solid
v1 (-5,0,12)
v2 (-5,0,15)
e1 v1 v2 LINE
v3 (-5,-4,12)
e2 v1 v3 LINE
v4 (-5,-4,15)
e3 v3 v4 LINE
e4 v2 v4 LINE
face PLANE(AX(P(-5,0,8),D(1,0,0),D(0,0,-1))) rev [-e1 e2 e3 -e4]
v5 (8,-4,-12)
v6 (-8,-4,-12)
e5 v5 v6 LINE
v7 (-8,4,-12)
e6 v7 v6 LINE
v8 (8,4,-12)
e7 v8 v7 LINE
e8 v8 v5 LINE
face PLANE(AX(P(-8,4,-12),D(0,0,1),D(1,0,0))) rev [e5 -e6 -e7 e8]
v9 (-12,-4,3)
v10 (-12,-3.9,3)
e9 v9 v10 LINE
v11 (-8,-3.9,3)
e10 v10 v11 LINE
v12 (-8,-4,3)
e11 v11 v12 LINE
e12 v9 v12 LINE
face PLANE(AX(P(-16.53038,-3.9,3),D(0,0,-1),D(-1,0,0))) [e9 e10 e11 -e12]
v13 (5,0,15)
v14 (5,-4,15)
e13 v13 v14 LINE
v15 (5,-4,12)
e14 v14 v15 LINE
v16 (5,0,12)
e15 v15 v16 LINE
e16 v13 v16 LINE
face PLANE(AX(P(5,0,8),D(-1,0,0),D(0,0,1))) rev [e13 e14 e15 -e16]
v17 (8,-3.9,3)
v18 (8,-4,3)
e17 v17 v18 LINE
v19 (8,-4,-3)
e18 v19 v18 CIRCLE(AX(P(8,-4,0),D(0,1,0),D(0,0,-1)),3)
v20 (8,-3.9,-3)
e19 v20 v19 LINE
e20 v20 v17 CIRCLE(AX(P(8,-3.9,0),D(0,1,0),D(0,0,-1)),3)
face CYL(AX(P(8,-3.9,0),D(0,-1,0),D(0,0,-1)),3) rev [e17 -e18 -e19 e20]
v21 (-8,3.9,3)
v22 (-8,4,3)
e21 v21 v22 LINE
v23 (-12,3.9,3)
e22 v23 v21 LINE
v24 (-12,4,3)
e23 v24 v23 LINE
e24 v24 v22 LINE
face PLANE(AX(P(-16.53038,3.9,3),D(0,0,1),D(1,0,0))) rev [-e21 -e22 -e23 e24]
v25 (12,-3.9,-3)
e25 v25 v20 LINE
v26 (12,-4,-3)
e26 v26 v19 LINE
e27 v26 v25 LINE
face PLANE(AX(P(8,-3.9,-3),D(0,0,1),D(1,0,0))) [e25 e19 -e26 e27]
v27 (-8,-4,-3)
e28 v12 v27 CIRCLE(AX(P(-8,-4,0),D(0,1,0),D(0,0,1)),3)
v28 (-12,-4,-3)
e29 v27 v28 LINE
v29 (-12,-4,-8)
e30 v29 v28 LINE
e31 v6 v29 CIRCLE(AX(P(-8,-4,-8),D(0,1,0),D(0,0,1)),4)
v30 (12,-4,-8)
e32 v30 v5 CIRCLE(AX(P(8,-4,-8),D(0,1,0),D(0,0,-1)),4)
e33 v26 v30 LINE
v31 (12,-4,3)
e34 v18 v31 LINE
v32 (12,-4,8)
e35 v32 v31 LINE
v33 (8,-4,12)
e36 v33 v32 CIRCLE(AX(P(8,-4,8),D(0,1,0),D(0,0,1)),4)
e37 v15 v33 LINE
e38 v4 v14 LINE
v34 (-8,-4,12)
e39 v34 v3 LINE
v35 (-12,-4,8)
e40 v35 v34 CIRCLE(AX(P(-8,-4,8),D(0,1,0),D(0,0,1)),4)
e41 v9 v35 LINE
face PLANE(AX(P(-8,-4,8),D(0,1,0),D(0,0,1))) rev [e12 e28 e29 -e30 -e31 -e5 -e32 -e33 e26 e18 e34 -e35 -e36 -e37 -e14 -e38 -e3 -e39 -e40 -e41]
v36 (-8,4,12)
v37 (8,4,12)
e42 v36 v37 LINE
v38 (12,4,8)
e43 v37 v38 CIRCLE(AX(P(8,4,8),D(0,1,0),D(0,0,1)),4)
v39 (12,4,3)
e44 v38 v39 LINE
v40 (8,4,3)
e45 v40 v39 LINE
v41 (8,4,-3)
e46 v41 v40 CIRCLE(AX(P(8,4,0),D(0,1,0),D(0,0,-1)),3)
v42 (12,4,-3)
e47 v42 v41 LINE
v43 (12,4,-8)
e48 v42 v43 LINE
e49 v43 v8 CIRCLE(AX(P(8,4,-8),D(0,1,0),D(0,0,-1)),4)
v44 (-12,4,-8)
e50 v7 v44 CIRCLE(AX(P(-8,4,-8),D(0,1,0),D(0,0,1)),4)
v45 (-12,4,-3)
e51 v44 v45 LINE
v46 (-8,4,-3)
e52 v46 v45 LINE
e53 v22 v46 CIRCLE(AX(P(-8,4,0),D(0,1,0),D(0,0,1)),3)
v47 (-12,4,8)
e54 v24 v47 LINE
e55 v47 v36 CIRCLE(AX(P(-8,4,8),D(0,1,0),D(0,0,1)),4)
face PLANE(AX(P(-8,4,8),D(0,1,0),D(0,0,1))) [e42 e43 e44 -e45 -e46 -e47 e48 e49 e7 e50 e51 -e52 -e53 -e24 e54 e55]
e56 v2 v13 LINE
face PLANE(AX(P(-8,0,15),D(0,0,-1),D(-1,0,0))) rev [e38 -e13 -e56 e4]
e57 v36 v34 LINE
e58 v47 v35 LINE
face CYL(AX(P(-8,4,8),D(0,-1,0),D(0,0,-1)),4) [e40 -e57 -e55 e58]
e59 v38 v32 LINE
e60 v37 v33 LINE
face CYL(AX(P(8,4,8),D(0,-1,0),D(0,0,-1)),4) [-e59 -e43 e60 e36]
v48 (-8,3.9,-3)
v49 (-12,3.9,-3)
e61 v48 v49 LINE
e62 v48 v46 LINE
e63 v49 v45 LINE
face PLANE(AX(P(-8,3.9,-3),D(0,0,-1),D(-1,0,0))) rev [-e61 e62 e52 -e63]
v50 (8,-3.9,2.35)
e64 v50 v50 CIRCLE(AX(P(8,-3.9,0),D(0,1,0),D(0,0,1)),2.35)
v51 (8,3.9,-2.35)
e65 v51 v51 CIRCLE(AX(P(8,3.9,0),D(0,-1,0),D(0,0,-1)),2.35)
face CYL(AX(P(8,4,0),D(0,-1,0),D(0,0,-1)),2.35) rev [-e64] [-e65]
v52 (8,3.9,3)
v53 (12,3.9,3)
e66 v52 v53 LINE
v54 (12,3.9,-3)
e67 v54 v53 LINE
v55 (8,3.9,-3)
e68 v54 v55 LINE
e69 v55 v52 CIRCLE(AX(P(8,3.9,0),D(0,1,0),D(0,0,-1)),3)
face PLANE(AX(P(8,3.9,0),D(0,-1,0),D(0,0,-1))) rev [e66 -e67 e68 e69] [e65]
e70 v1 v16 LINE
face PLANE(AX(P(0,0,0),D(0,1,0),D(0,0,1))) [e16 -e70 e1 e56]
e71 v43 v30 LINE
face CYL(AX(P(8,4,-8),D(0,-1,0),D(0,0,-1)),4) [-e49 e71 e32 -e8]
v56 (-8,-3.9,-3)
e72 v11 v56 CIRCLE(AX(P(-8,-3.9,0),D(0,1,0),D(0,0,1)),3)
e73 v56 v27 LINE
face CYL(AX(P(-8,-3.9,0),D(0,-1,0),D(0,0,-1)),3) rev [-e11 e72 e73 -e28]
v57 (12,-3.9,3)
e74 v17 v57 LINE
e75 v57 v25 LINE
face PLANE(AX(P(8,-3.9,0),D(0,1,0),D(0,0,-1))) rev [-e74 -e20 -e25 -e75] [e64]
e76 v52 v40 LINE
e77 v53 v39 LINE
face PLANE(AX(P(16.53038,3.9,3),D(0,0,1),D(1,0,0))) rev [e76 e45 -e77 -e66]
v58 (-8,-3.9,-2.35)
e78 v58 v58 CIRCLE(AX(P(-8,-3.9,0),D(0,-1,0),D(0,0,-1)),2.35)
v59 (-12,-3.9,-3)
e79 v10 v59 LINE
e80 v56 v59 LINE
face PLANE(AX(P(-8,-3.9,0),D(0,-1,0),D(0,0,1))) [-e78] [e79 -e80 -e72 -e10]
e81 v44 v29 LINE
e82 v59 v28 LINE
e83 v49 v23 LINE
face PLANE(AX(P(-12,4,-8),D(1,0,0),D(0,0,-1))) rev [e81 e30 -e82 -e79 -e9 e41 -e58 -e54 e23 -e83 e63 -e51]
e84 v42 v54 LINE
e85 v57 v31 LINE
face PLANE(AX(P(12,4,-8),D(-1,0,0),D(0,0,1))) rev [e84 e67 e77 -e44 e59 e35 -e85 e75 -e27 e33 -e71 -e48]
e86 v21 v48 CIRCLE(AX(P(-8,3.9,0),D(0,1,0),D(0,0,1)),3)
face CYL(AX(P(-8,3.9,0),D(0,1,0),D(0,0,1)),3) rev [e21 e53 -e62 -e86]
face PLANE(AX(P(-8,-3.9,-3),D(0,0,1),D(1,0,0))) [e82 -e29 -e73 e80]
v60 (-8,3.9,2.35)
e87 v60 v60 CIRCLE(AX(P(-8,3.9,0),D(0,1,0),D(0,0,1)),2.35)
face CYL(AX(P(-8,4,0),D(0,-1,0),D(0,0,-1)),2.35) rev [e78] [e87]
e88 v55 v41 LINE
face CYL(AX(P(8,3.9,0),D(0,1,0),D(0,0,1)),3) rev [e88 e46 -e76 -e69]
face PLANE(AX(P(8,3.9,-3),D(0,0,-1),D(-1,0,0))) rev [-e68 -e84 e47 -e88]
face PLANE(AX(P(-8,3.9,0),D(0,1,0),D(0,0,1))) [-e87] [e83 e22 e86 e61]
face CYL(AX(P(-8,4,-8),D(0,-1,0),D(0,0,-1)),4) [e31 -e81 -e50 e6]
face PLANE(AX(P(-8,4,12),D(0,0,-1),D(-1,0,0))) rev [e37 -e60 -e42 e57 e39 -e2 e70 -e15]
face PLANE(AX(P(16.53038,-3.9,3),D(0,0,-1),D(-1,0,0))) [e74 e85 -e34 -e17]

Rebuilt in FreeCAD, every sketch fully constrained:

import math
import FreeCAD as App
import Part
import Sketcher


def add_polygon(sketch, points):
    """Adds a closed chain of lines whose ends are joined by coincident constraints."""
    first, n = sketch.GeometryCount, len(points)
    for a, b in zip(points, points[1:] + points[:1]):
        sketch.addGeometry(Part.LineSegment(App.Vector(*a, 0), App.Vector(*b, 0)), False)
    for i in range(n):
        sketch.addConstraint(Sketcher.Constraint("Coincident", first + i, 2, first + (i + 1) % n, 1))

doc = App.newDocument("Part")
params = doc.addObject("Spreadsheet::Sheet", "Params")
for row, (alias, value) in enumerate([
    ("sketch1_radius", "4 mm"),
    ("sketch1_diameter", "4.7 mm"),
    ("sketch1_width", "16 mm"),
    ("pad1_length", "8 mm"),
    ("sketch2_width", "10 mm"),
    ("sketch2_height", "6 mm"),
    ("pad2_length", "4 mm"),
    ("sketch3_radius", "3 mm"),
    ("pocket1_length", "0.1 mm"),
], start=1):
    params.set(f"A{row}", alias)
    params.set(f"B{row}", "=" + value)
    params.setAlias(f"B{row}", alias)

body = doc.addObject("PartDesign::Body", "Body")

# Sketch on XZ plane
sketch1 = body.newObject("Sketcher::SketchObject", "Sketch")
sketch1.AttachmentSupport = (doc.getObject("XZ_Plane"), [""])
sketch1.MapMode = "FlatFace"
sketch1.addGeometry([
    Part.LineSegment(App.Vector(8, -12, 0), App.Vector(-8, -12, 0)),  # 0
    Part.ArcOfCircle(Part.Circle(App.Vector(-8, -8, 0), App.Vector(0, 0, 1), 4), math.radians(180), math.radians(270)),  # 1
    Part.LineSegment(App.Vector(-12, -8, 0), App.Vector(-12, 8, 0)),  # 2
    Part.ArcOfCircle(Part.Circle(App.Vector(-8, 8, 0), App.Vector(0, 0, 1), 4), math.radians(90), math.radians(180)),  # 3
    Part.LineSegment(App.Vector(-8, 12, 0), App.Vector(8, 12, 0)),  # 4
    Part.ArcOfCircle(Part.Circle(App.Vector(8, 8, 0), App.Vector(0, 0, 1), 4), math.radians(0), math.radians(90)),  # 5
    Part.LineSegment(App.Vector(12, 8, 0), App.Vector(12, -8, 0)),  # 6
    Part.ArcOfCircle(Part.Circle(App.Vector(8, -8, 0), App.Vector(0, 0, 1), 4), math.radians(-90), math.radians(0)),  # 7
    Part.Circle(App.Vector(8, 0, 0), App.Vector(0, 0, 1), 2.35),  # 8
    Part.Circle(App.Vector(-8, 0, 0), App.Vector(0, 0, 1), 2.35),  # 9
], False)
sketch1.addConstraint([
    Sketcher.Constraint("Tangent", 0, 2, 1, 2),
    Sketcher.Constraint("Tangent", 1, 1, 2, 1),
    Sketcher.Constraint("Tangent", 2, 2, 3, 2),
    Sketcher.Constraint("Tangent", 3, 1, 4, 1),
    Sketcher.Constraint("Tangent", 4, 2, 5, 2),
    Sketcher.Constraint("Tangent", 5, 1, 6, 1),
    Sketcher.Constraint("Tangent", 6, 2, 7, 2),
    Sketcher.Constraint("Tangent", 7, 1, 0, 1),
    Sketcher.Constraint("Horizontal", 0),
    Sketcher.Constraint("Vertical", 2),
    Sketcher.Constraint("Horizontal", 4),
    Sketcher.Constraint("Vertical", 6),
    Sketcher.Constraint("Equal", 1, 3),
    Sketcher.Constraint("Equal", 3, 5),
    Sketcher.Constraint("Equal", 5, 7),
    Sketcher.Constraint("Equal", 8, 9),
    Sketcher.Constraint("Symmetric", 1, 3, 5, 3, -1, 1),
    Sketcher.Constraint("Symmetric", 8, 3, 9, 3, -1, 1),
    Sketcher.Constraint("PointOnObject", 8, 3, -1),
    Sketcher.Constraint("Vertical", 7, 3, 8, 3),
    Sketcher.Constraint("Equal", 4, 2),
    Sketcher.Constraint("Radius", 1, 4.0),
    Sketcher.Constraint("Diameter", 8, 4.7),
    Sketcher.Constraint("DistanceX", 0, 2, 0, 1, 16.0),
])
sketch1.setExpression("Constraints[21]", "Params.sketch1_radius")
sketch1.setExpression("Constraints[22]", "Params.sketch1_diameter")
sketch1.setExpression("Constraints[23]", "Params.sketch1_width")
pad1 = body.newObject("PartDesign::Pad", "Pad")
pad1.Profile = sketch1
pad1.setExpression("Length", "Params.pad1_length")
pad1.Midplane = True

# Sketch on XZ plane
sketch2 = body.newObject("Sketcher::SketchObject", "Sketch001")
sketch2.AttachmentSupport = (doc.getObject("XZ_Plane"), [""])
sketch2.MapMode = "FlatFace"
sketch2.AttachmentOffset = App.Placement(App.Vector(0, 0, 4), App.Rotation())
add_polygon(sketch2, [(-5, 9), (-5, 15), (5, 15), (5, 9)])  # lines 0-3
sketch2.addConstraint([
    Sketcher.Constraint("Vertical", 0),
    Sketcher.Constraint("Horizontal", 1),
    Sketcher.Constraint("Vertical", 2),
    Sketcher.Constraint("Horizontal", 3),
    Sketcher.Constraint("DistanceX", 1, 1, 1, 2, 10.0),
    Sketcher.Constraint("DistanceY", 0, 1, 0, 2, 6.0),
    Sketcher.Constraint("DistanceX", 0, 2, -1, 1, 5.0),
    Sketcher.Constraint("DistanceY", -1, 1, 0, 2, 15.0),
])
sketch2.setExpression("Constraints[8]", "Params.sketch2_width")
sketch2.setExpression("Constraints[9]", "Params.sketch2_height")
pad2 = body.newObject("PartDesign::Pad", "Pad001")
pad2.Profile = sketch2
pad2.setExpression("Length", "Params.pad2_length")
pad2.Reversed = True

# Sketch on XZ plane
sketch3 = body.newObject("Sketcher::SketchObject", "Sketch002")
sketch3.AttachmentSupport = (doc.getObject("XZ_Plane"), [""])
sketch3.MapMode = "FlatFace"
sketch3.AttachmentOffset = App.Placement(App.Vector(0, 0, -4), App.Rotation())
sketch3.addGeometry([
    Part.LineSegment(App.Vector(-8, -3, 0), App.Vector(-16.53038, -3, 0)),  # 0
    Part.LineSegment(App.Vector(-16.53038, -3, 0), App.Vector(-16.53038, 3, 0)),  # 1
    Part.LineSegment(App.Vector(-16.53038, 3, 0), App.Vector(-8, 3, 0)),  # 2
    Part.ArcOfCircle(Part.Circle(App.Vector(-8, 0, 0), App.Vector(0, 0, 1), 3), math.radians(-90), math.radians(90)),  # 3
    Part.LineSegment(App.Vector(8, 3, 0), App.Vector(16.53038, 3, 0)),  # 4
    Part.LineSegment(App.Vector(16.53038, 3, 0), App.Vector(16.53038, -3, 0)),  # 5
    Part.LineSegment(App.Vector(16.53038, -3, 0), App.Vector(8, -3, 0)),  # 6
    Part.ArcOfCircle(Part.Circle(App.Vector(8, 0, 0), App.Vector(0, 0, 1), 3), math.radians(90), math.radians(270)),  # 7
], False)
sketch3.addConstraint([
    Sketcher.Constraint("Coincident", 0, 2, 1, 1),
    Sketcher.Constraint("Coincident", 1, 2, 2, 1),
    Sketcher.Constraint("Tangent", 2, 2, 3, 2),
    Sketcher.Constraint("Tangent", 3, 1, 0, 1),
    Sketcher.Constraint("Coincident", 4, 2, 5, 1),
    Sketcher.Constraint("Coincident", 5, 2, 6, 1),
    Sketcher.Constraint("Tangent", 6, 2, 7, 2),
    Sketcher.Constraint("Tangent", 7, 1, 4, 1),
    Sketcher.Constraint("Horizontal", 0),
    Sketcher.Constraint("Vertical", 1),
    Sketcher.Constraint("Horizontal", 2),
    Sketcher.Constraint("Horizontal", 4),
    Sketcher.Constraint("Vertical", 5),
    Sketcher.Constraint("Horizontal", 6),
    Sketcher.Constraint("Equal", 3, 7),
    Sketcher.Constraint("Symmetric", 3, 3, 7, 3, -1, 1),
    Sketcher.Constraint("Symmetric", 1, 2, 4, 2, -2),
    Sketcher.Constraint("Radius", 3, 3.0),
    Sketcher.Constraint("DistanceX", 3, 3, -1, 1, 8.0),
    Sketcher.Constraint("DistanceX", 0, 2, 0, 1, 8.53038),
])
sketch3.setExpression("Constraints[17]", "Params.sketch3_radius")
pocket1 = body.newObject("PartDesign::Pocket", "Pocket")
pocket1.Profile = sketch3
pocket1.setExpression("Length", "Params.pocket1_length")
pocket1.Reversed = True
doc.recompute()

mirrored = body.newObject("PartDesign::Mirrored", "Mirrored")
mirrored.Originals = [pocket1]
mirrored.MirrorPlane = (doc.getObject("XZ_Plane"), [""])
body.Tip = mirrored

doc.recompute()
